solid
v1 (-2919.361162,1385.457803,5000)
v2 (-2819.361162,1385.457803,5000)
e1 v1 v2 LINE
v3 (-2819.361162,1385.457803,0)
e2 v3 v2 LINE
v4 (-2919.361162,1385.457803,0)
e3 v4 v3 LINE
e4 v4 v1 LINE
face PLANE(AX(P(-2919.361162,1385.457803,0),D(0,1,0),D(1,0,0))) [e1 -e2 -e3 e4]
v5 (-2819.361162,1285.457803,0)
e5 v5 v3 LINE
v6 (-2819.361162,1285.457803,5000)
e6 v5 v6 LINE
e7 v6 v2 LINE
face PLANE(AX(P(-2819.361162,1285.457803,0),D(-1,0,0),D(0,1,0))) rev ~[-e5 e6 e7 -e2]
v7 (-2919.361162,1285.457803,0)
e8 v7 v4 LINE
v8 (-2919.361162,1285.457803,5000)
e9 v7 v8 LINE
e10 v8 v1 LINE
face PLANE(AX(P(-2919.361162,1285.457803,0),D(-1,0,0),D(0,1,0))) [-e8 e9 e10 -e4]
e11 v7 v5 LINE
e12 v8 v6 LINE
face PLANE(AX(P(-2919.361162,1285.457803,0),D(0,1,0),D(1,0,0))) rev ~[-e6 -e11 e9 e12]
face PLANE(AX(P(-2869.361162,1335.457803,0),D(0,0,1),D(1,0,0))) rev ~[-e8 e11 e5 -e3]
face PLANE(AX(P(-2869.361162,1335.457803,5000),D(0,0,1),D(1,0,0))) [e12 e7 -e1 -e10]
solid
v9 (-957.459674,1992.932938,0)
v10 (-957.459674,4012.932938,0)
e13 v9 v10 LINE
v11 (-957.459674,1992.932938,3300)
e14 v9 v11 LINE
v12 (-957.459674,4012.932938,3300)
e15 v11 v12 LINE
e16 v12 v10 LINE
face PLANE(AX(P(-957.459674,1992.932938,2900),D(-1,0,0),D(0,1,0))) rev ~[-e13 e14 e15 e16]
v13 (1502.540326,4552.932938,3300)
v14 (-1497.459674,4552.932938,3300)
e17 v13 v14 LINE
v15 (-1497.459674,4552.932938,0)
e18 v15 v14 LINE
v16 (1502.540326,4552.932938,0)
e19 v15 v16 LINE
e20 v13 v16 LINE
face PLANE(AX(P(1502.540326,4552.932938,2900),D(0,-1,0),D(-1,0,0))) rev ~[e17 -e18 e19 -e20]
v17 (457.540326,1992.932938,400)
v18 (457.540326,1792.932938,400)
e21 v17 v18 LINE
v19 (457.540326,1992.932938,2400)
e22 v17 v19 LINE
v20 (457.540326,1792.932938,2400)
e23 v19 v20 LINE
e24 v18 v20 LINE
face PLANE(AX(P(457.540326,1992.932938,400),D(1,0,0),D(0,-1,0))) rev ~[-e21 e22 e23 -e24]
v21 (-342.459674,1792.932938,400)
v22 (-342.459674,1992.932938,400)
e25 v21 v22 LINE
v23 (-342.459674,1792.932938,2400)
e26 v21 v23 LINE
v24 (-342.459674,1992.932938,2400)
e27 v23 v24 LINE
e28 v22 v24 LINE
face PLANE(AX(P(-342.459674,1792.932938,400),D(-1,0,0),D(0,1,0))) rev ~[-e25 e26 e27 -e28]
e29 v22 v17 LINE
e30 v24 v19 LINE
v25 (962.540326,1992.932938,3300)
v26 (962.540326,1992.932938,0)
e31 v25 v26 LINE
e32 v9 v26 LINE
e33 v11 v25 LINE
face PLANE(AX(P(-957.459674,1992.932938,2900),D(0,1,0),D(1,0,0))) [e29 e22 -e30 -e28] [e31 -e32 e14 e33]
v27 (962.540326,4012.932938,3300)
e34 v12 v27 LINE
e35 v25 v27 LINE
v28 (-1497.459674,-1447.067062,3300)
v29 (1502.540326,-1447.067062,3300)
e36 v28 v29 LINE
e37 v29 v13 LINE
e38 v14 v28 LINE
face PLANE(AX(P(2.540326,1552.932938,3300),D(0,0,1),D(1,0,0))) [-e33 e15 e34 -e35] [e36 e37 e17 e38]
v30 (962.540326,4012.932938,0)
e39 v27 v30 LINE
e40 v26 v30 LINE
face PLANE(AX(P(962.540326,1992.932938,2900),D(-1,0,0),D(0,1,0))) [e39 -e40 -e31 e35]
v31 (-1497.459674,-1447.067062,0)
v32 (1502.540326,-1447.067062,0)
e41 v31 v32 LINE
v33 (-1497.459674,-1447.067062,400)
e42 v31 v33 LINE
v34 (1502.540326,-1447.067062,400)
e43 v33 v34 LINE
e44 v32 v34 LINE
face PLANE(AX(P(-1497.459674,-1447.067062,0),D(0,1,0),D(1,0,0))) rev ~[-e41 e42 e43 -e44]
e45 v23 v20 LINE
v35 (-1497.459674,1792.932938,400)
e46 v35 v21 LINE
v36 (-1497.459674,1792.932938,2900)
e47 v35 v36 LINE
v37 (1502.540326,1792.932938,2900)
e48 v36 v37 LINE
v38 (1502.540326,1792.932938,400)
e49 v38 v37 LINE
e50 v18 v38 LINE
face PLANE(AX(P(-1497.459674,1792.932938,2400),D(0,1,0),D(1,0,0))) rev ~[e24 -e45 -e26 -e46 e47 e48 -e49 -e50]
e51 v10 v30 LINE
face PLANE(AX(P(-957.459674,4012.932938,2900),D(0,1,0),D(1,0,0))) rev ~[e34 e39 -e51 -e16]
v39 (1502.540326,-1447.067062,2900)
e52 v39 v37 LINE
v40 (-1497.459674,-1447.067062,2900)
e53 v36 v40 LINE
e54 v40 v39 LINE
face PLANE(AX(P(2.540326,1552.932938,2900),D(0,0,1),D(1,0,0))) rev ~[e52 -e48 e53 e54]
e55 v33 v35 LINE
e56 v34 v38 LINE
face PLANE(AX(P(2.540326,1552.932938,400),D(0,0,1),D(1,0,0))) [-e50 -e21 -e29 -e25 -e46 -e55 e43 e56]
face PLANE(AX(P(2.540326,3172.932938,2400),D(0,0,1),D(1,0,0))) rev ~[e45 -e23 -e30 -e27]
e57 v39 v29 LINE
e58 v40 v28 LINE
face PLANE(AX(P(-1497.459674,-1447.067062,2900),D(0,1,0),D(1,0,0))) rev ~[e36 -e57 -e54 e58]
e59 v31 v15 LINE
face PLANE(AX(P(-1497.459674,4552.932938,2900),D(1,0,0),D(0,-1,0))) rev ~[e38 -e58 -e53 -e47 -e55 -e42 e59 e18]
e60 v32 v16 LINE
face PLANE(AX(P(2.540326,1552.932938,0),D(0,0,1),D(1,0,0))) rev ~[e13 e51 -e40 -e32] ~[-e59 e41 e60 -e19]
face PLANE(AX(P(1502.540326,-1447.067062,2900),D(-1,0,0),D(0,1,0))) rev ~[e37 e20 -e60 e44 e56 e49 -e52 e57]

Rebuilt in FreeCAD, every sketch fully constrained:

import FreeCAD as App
import Part
import Sketcher

V = App.Vector

doc = App.newDocument("Part")
params = doc.addObject("Spreadsheet::Sheet", "Params")
for row, (alias, value) in enumerate([
    ("sketch1_width", "3000 mm"),
    ("sketch1_width2", "1920 mm"),
    ("sketch1_height", "6000 mm"),
    ("sketch1_height2", "2020 mm"),
    ("pad1_length", "400 mm"),
    ("sketch2_width", "3000 mm"),
    ("sketch2_width2", "1155 mm"),
    ("sketch2_width3", "615 mm"),
    ("sketch2_width4", "1920 mm"),
    ("sketch2_width5", "505 mm"),
    ("pad2_length", "2000 mm"),
    ("sketch3_width", "3000 mm"),
    ("sketch3_width2", "1920 mm"),
    ("sketch3_height", "2760 mm"),
    ("sketch3_height2", "2020 mm"),
    ("pad3_length", "500 mm"),
    ("sketch4_width", "3000 mm"),
    ("sketch4_width2", "1920 mm"),
    ("sketch4_height", "6000 mm"),
    ("sketch4_height2", "2020 mm"),
    ("pad4_length", "400 mm"),
    ("sketch5_width", "100 mm"),
    ("pad5_length", "5000 mm"),
], start=1):
    params.set(f"A{row}", alias)
    params.set(f"B{row}", "=" + value)
    params.setAlias(f"B{row}", alias)

body = doc.addObject("PartDesign::Body", "Body")

sketch1 = body.newObject("Sketcher::SketchObject", "Sketch")
sketch1.AttachmentSupport = (doc.getObject("XY_Plane"), [""])
sketch1.MapMode = "FlatFace"
sketch1.addGeometry([
    Part.LineSegment(V(-1497, 4553, 0), V(-1497, -1447, 0)),
    Part.LineSegment(V(-1497, -1447, 0), V(1503, -1447, 0)),
    Part.LineSegment(V(1503, -1447, 0), V(1503, 4553, 0)),
    Part.LineSegment(V(1503, 4553, 0), V(-1497, 4553, 0)),
    Part.LineSegment(V(963, 1993, 0), V(-957, 1993, 0)),
    Part.LineSegment(V(-957, 1993, 0), V(-957, 4013, 0)),
    Part.LineSegment(V(-957, 4013, 0), V(963, 4013, 0)),
    Part.LineSegment(V(963, 4013, 0), V(963, 1993, 0)),
], False)
sketch1.addConstraint([
    Sketcher.Constraint("Coincident", 0, 2, 1, 1),
    Sketcher.Constraint("Coincident", 1, 2, 2, 1),
    Sketcher.Constraint("Coincident", 2, 2, 3, 1),
    Sketcher.Constraint("Coincident", 3, 2, 0, 1),
    Sketcher.Constraint("Coincident", 4, 2, 5, 1),
    Sketcher.Constraint("Coincident", 5, 2, 6, 1),
    Sketcher.Constraint("Coincident", 6, 2, 7, 1),
    Sketcher.Constraint("Coincident", 7, 2, 4, 1),
    Sketcher.Constraint("Vertical", 0),
    Sketcher.Constraint("Horizontal", 1),
    Sketcher.Constraint("Vertical", 2),
    Sketcher.Constraint("Horizontal", 3),
    Sketcher.Constraint("Horizontal", 4),
    Sketcher.Constraint("Vertical", 5),
    Sketcher.Constraint("Horizontal", 6),
    Sketcher.Constraint("Vertical", 7),
    Sketcher.Constraint("DistanceX", 1, 1, 1, 2, 3000.0),
    Sketcher.Constraint("DistanceX", 4, 2, 4, 1, 1920.0),
    Sketcher.Constraint("DistanceY", 0, 2, 0, 1, 6000.0),
    Sketcher.Constraint("DistanceY", 5, 1, 5, 2, 2020.0),
    Sketcher.Constraint("DistanceX", 3, 2, 4, 2, 540.0),
    Sketcher.Constraint("DistanceY", 4, 2, 3, 2, 2560.0),
    Sketcher.Constraint("DistanceY", 0, 2, -1, 1, 1447.067062),
    Sketcher.Constraint("DistanceX", 0, 2, -1, 1, 1497.459674),
])
sketch1.setExpression("Constraints[16]", "Params.sketch1_width")
sketch1.setExpression("Constraints[17]", "Params.sketch1_width2")
sketch1.setExpression("Constraints[18]", "Params.sketch1_height")
sketch1.setExpression("Constraints[19]", "Params.sketch1_height2")
pad1 = body.newObject("PartDesign::Pad", "Pad")
pad1.Profile = sketch1
pad1.setExpression("Length", "Params.pad1_length")

sketch2 = body.newObject("Sketcher::SketchObject", "Sketch001")
sketch2.AttachmentSupport = (doc.getObject("XY_Plane"), [""])
sketch2.MapMode = "FlatFace"
sketch2.AttachmentOffset = App.Placement(V(0, 0, 400), App.Rotation())
sketch2.addGeometry([
    Part.LineSegment(V(1503, 4553, 0), V(-1497, 4553, 0)),
    Part.LineSegment(V(-1497, 4553, 0), V(-1497, 1793, 0)),
    Part.LineSegment(V(-1497, 1793, 0), V(-342, 1793, 0)),
    Part.LineSegment(V(-342, 1793, 0), V(-342, 1993, 0)),
    Part.LineSegment(V(-342, 1993, 0), V(-957, 1993, 0)),
    Part.LineSegment(V(-957, 1993, 0), V(-957, 4013, 0)),
    Part.LineSegment(V(-957, 4013, 0), V(963, 4013, 0)),
    Part.LineSegment(V(963, 4013, 0), V(963, 1993, 0)),
    Part.LineSegment(V(963, 1993, 0), V(458, 1993, 0)),
    Part.LineSegment(V(458, 1993, 0), V(458, 1793, 0)),
    Part.LineSegment(V(458, 1793, 0), V(1503, 1793, 0)),
    Part.LineSegment(V(1503, 1793, 0), V(1503, 4553, 0)),
], False)
sketch2.addConstraint([
    Sketcher.Constraint("Coincident", 0, 2, 1, 1),
    Sketcher.Constraint("Coincident", 1, 2, 2, 1),
    Sketcher.Constraint("Coincident", 2, 2, 3, 1),
    Sketcher.Constraint("Coincident", 3, 2, 4, 1),
    Sketcher.Constraint("Coincident", 4, 2, 5, 1),
    Sketcher.Constraint("Coincident", 5, 2, 6, 1),
    Sketcher.Constraint("Coincident", 6, 2, 7, 1),
    Sketcher.Constraint("Coincident", 7, 2, 8, 1),
    Sketcher.Constraint("Coincident", 8, 2, 9, 1),
    Sketcher.Constraint("Coincident", 9, 2, 10, 1),
    Sketcher.Constraint("Coincident", 10, 2, 11, 1),
    Sketcher.Constraint("Coincident", 11, 2, 0, 1),
    Sketcher.Constraint("Horizontal", 0),
    Sketcher.Constraint("Vertical", 1),
    Sketcher.Constraint("Horizontal", 2),
    Sketcher.Constraint("Vertical", 3),
    Sketcher.Constraint("Horizontal", 4),
    Sketcher.Constraint("Vertical", 5),
    Sketcher.Constraint("Horizontal", 6),
    Sketcher.Constraint("Vertical", 7),
    Sketcher.Constraint("Horizontal", 8),
    Sketcher.Constraint("Vertical", 9),
    Sketcher.Constraint("Horizontal", 10),
    Sketcher.Constraint("Vertical", 11),
    Sketcher.Constraint("Horizontal", 4, 2, 7, 2),
    Sketcher.Constraint("Horizontal", 2, 2, 9, 2),
    Sketcher.Constraint("DistanceX", 0, 2, 0, 1, 3000.0),
    Sketcher.Constraint("DistanceX", 2, 1, 2, 2, 1155.0),
    Sketcher.Constraint("DistanceX", 4, 2, 4, 1, 615.0),
    Sketcher.Constraint("DistanceX", 6, 1, 6, 2, 1920.0),
    Sketcher.Constraint("DistanceX", 8, 2, 8, 1, 505.0),
    Sketcher.Constraint("DistanceY", 1, 2, 1, 1, 2760.0),
    Sketcher.Constraint("DistanceY", 3, 1, 3, 2, 200.0),
    Sketcher.Constraint("DistanceY", 5, 1, 5, 2, 2020.0),
    Sketcher.Constraint("DistanceY", -1, 1, 0, 2, 4552.932938),
    Sketcher.Constraint("DistanceX", 0, 2, -1, 1, 1497.459674),
])
sketch2.setExpression("Constraints[26]", "Params.sketch2_width")
sketch2.setExpression("Constraints[27]", "Params.sketch2_width2")
sketch2.setExpression("Constraints[28]", "Params.sketch2_width3")
sketch2.setExpression("Constraints[29]", "Params.sketch2_width4")
sketch2.setExpression("Constraints[30]", "Params.sketch2_width5")
pad2 = body.newObject("PartDesign::Pad", "Pad001")
pad2.Profile = sketch2
pad2.setExpression("Length", "Params.pad2_length")

sketch3 = body.newObject("Sketcher::SketchObject", "Sketch002")
sketch3.AttachmentSupport = (doc.getObject("XY_Plane"), [""])
sketch3.MapMode = "FlatFace"
sketch3.AttachmentOffset = App.Placement(V(0, 0, 2400), App.Rotation())
sketch3.addGeometry([
    Part.LineSegment(V(-1497, 4553, 0), V(-1497, 1793, 0)),
    Part.LineSegment(V(-1497, 1793, 0), V(1503, 1793, 0)),
    Part.LineSegment(V(1503, 1793, 0), V(1503, 4553, 0)),
    Part.LineSegment(V(1503, 4553, 0), V(-1497, 4553, 0)),
    Part.LineSegment(V(963, 1993, 0), V(-957, 1993, 0)),
    Part.LineSegment(V(-957, 1993, 0), V(-957, 4013, 0)),
    Part.LineSegment(V(-957, 4013, 0), V(963, 4013, 0)),
    Part.LineSegment(V(963, 4013, 0), V(963, 1993, 0)),
], False)
sketch3.addConstraint([
    Sketcher.Constraint("Coincident", 0, 2, 1, 1),
    Sketcher.Constraint("Coincident", 1, 2, 2, 1),
    Sketcher.Constraint("Coincident", 2, 2, 3, 1),
    Sketcher.Constraint("Coincident", 3, 2, 0, 1),
    Sketcher.Constraint("Coincident", 4, 2, 5, 1),
    Sketcher.Constraint("Coincident", 5, 2, 6, 1),
    Sketcher.Constraint("Coincident", 6, 2, 7, 1),
    Sketcher.Constraint("Coincident", 7, 2, 4, 1),
    Sketcher.Constraint("Vertical", 0),
    Sketcher.Constraint("Horizontal", 1),
    Sketcher.Constraint("Vertical", 2),
    Sketcher.Constraint("Horizontal", 3),
    Sketcher.Constraint("Horizontal", 4),
    Sketcher.Constraint("Vertical", 5),
    Sketcher.Constraint("Horizontal", 6),
    Sketcher.Constraint("Vertical", 7),
    Sketcher.Constraint("DistanceX", 1, 1, 1, 2, 3000.0),
    Sketcher.Constraint("DistanceX", 4, 2, 4, 1, 1920.0),
    Sketcher.Constraint("DistanceY", 0, 2, 0, 1, 2760.0),
    Sketcher.Constraint("DistanceY", 5, 1, 5, 2, 2020.0),
    Sketcher.Constraint("DistanceX", 0, 2, 4, 2, 540.0),
    Sketcher.Constraint("DistanceY", 0, 2, 4, 2, 200.0),
    Sketcher.Constraint("DistanceY", -1, 1, 0, 2, 1792.932938),
    Sketcher.Constraint("DistanceX", 0, 2, -1, 1, 1497.459674),
])
sketch3.setExpression("Constraints[16]", "Params.sketch3_width")
sketch3.setExpression("Constraints[17]", "Params.sketch3_width2")
sketch3.setExpression("Constraints[18]", "Params.sketch3_height")
sketch3.setExpression("Constraints[19]", "Params.sketch3_height2")
pad3 = body.newObject("PartDesign::Pad", "Pad002")
pad3.Profile = sketch3
pad3.setExpression("Length", "Params.pad3_length")

sketch4 = body.newObject("Sketcher::SketchObject", "Sketch003")
sketch4.AttachmentSupport = (doc.getObject("XY_Plane"), [""])
sketch4.MapMode = "FlatFace"
sketch4.AttachmentOffset = App.Placement(V(0, 0, 2900), App.Rotation())
sketch4.addGeometry([
    Part.LineSegment(V(1503, 4553, 0), V(-1497, 4553, 0)),
    Part.LineSegment(V(-1497, 4553, 0), V(-1497, -1447, 0)),
    Part.LineSegment(V(-1497, -1447, 0), V(1503, -1447, 0)),
    Part.LineSegment(V(1503, -1447, 0), V(1503, 4553, 0)),
    Part.LineSegment(V(963, 1993, 0), V(-957, 1993, 0)),
    Part.LineSegment(V(-957, 1993, 0), V(-957, 4013, 0)),
    Part.LineSegment(V(-957, 4013, 0), V(963, 4013, 0)),
    Part.LineSegment(V(963, 4013, 0), V(963, 1993, 0)),
], False)
sketch4.addConstraint([
    Sketcher.Constraint("Coincident", 0, 2, 1, 1),
    Sketcher.Constraint("Coincident", 1, 2, 2, 1),
    Sketcher.Constraint("Coincident", 2, 2, 3, 1),
    Sketcher.Constraint("Coincident", 3, 2, 0, 1),
    Sketcher.Constraint("Coincident", 4, 2, 5, 1),
    Sketcher.Constraint("Coincident", 5, 2, 6, 1),
    Sketcher.Constraint("Coincident", 6, 2, 7, 1),
    Sketcher.Constraint("Coincident", 7, 2, 4, 1),
    Sketcher.Constraint("Horizontal", 0),
    Sketcher.Constraint("Vertical", 1),
    Sketcher.Constraint("Horizontal", 2),
    Sketcher.Constraint("Vertical", 3),
    Sketcher.Constraint("Horizontal", 4),
    Sketcher.Constraint("Vertical", 5),
    Sketcher.Constraint("Horizontal", 6),
    Sketcher.Constraint("Vertical", 7),
    Sketcher.Constraint("DistanceX", 0, 2, 0, 1, 3000.0),
    Sketcher.Constraint("DistanceX", 4, 2, 4, 1, 1920.0),
    Sketcher.Constraint("DistanceY", 1, 2, 1, 1, 6000.0),
    Sketcher.Constraint("DistanceY", 5, 1, 5, 2, 2020.0),
    Sketcher.Constraint("DistanceX", 0, 2, 4, 2, 540.0),
    Sketcher.Constraint("DistanceY", 4, 2, 0, 2, 2560.0),
    Sketcher.Constraint("DistanceY", -1, 1, 0, 2, 4552.932938),
    Sketcher.Constraint("DistanceX", 0, 2, -1, 1, 1497.459674),
])
sketch4.setExpression("Constraints[16]", "Params.sketch4_width")
sketch4.setExpression("Constraints[17]", "Params.sketch4_width2")
sketch4.setExpression("Constraints[18]", "Params.sketch4_height")
sketch4.setExpression("Constraints[19]", "Params.sketch4_height2")
pad4 = body.newObject("PartDesign::Pad", "Pad003")
pad4.Profile = sketch4
pad4.setExpression("Length", "Params.pad4_length")
body2 = doc.addObject("PartDesign::Body", "Body001")

sketch5 = body2.newObject("Sketcher::SketchObject", "Sketch004")
sketch5.AttachmentSupport = (doc.getObject("XY_Plane001"), [""])
sketch5.MapMode = "FlatFace"
sketch5.addGeometry([
    Part.LineSegment(V(-2919, 1385, 0), V(-2919, 1285, 0)),
    Part.LineSegment(V(-2919, 1285, 0), V(-2819, 1285, 0)),
    Part.LineSegment(V(-2819, 1285, 0), V(-2819, 1385, 0)),
    Part.LineSegment(V(-2819, 1385, 0), V(-2919, 1385, 0)),
], False)
sketch5.addConstraint([
    Sketcher.Constraint("Coincident", 0, 2, 1, 1),
    Sketcher.Constraint("Coincident", 1, 2, 2, 1),
    Sketcher.Constraint("Coincident", 2, 2, 3, 1),
    Sketcher.Constraint("Coincident", 3, 2, 0, 1),
    Sketcher.Constraint("Vertical", 0),
    Sketcher.Constraint("Horizontal", 1),
    Sketcher.Constraint("Vertical", 2),
    Sketcher.Constraint("Horizontal", 3),
    Sketcher.Constraint("Equal", 3, 0),
    Sketcher.Constraint("DistanceX", 1, 1, 1, 2, 100.0),
    Sketcher.Constraint("DistanceX", 0, 2, -1, 1, 2919.361162),
    Sketcher.Constraint("DistanceY", -1, 1, 0, 2, 1285.457803),
])
sketch5.setExpression("Constraints[9]", "Params.sketch5_width")
pad5 = body2.newObject("PartDesign::Pad", "Pad004")
pad5.Profile = sketch5
pad5.setExpression("Length", "Params.pad5_length")

doc.recompute()
